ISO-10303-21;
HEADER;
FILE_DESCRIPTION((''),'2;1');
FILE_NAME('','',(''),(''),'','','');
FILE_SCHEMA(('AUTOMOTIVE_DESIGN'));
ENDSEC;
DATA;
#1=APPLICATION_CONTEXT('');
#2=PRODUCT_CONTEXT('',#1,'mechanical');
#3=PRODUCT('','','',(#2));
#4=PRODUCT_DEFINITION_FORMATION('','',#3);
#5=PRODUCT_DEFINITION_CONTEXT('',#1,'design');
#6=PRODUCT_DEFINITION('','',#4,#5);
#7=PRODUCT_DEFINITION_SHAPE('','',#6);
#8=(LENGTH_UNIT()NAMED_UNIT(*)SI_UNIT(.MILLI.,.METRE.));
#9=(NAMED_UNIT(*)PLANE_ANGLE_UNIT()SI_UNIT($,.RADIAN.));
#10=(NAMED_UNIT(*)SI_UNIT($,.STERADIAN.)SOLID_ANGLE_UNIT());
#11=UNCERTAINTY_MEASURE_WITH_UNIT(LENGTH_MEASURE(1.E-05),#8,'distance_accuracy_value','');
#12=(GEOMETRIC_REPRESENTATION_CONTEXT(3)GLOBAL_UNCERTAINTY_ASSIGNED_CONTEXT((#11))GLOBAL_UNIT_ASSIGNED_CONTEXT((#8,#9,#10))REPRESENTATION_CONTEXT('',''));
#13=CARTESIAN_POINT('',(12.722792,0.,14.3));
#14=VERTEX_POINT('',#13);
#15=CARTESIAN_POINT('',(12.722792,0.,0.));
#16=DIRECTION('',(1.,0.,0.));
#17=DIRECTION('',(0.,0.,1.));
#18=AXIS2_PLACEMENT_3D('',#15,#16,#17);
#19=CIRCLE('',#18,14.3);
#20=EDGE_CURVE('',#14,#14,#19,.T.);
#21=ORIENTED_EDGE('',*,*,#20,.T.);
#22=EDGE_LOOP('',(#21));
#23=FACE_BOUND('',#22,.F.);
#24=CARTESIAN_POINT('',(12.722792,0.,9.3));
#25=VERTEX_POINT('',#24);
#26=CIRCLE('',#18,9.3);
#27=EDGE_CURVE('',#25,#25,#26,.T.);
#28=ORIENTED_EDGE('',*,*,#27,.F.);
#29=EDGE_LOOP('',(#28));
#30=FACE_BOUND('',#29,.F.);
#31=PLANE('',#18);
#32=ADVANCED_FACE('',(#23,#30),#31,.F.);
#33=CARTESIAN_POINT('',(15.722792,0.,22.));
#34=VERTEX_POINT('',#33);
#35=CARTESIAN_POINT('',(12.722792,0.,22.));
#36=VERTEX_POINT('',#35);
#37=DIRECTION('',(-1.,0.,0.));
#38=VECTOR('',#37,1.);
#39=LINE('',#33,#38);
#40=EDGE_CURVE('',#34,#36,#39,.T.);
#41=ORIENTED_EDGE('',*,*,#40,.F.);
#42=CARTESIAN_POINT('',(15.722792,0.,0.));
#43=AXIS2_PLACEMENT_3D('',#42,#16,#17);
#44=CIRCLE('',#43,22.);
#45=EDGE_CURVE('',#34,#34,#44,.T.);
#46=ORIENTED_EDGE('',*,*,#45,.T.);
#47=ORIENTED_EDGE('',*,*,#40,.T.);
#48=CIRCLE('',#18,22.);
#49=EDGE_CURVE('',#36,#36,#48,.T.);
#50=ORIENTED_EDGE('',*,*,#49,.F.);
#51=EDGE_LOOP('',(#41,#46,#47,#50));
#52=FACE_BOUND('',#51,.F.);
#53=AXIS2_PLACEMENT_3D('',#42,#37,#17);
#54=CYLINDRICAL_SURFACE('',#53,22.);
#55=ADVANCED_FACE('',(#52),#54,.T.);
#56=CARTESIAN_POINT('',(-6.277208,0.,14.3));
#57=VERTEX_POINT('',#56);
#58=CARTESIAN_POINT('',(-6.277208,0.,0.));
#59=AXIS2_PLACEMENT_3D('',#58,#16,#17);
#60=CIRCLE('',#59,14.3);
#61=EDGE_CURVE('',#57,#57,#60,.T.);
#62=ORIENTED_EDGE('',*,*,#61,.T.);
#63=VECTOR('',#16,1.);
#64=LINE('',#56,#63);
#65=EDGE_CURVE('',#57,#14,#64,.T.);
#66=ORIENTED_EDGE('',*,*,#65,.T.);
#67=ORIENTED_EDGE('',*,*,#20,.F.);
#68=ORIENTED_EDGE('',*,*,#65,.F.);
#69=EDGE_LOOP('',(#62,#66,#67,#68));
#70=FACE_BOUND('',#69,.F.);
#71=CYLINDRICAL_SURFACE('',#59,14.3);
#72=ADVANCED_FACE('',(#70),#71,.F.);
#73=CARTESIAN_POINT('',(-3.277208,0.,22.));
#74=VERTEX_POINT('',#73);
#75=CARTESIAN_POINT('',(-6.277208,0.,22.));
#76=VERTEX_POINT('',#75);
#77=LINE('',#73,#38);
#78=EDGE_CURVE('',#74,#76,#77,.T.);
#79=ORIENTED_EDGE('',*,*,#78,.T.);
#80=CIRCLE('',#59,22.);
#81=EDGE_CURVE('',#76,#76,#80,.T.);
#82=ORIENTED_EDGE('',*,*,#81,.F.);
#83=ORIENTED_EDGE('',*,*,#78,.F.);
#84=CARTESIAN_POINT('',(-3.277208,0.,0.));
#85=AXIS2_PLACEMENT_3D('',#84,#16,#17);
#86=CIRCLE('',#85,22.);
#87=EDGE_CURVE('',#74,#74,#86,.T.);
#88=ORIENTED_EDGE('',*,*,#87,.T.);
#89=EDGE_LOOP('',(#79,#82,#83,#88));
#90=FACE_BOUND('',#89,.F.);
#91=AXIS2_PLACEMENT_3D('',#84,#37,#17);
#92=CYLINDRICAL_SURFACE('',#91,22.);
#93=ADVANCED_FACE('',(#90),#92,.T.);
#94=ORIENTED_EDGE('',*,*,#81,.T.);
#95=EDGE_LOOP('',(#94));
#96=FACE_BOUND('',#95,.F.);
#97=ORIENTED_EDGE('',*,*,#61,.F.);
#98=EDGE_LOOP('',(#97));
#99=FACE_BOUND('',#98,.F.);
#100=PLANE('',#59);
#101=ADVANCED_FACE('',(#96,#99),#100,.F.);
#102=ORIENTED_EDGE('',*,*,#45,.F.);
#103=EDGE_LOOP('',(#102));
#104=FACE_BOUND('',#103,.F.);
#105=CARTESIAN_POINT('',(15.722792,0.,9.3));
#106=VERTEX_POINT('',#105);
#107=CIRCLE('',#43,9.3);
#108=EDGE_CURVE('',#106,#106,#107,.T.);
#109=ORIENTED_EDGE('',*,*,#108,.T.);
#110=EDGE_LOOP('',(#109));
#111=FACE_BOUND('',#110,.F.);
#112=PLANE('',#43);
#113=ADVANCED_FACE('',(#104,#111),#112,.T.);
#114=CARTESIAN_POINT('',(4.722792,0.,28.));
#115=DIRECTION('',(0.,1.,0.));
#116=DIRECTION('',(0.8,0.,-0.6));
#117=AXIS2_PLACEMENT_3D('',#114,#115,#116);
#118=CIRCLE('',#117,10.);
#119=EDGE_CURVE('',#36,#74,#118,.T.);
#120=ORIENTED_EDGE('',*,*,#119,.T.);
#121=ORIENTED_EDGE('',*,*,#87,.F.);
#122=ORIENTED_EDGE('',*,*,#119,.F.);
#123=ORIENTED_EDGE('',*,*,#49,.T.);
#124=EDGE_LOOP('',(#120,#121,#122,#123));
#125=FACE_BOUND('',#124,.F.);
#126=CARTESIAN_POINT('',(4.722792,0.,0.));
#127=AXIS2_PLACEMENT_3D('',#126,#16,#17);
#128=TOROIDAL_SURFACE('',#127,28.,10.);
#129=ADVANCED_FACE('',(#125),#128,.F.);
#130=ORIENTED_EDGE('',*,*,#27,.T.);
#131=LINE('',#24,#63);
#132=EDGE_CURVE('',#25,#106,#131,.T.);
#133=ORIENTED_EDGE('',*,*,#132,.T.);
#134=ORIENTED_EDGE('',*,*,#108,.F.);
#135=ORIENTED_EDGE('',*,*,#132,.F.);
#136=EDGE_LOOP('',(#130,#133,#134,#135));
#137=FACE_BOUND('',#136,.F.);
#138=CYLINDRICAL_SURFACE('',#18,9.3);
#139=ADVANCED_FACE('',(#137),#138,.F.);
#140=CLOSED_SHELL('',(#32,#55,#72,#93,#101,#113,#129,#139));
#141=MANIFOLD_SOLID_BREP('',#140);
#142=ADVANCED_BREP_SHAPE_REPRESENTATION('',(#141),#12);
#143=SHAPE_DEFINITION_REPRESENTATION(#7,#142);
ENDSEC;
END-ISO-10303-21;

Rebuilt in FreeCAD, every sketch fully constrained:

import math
import FreeCAD as App
import Part
import Sketcher

V = App.Vector

doc = App.newDocument("Part")
params = doc.addObject("Spreadsheet::Sheet", "Params")
for row, (alias, value) in enumerate([
    ("sketch1_radius", "10 mm"),
    ("sketch1_width", "19 mm"),
    ("sketch1_width2", "3 mm"),
    ("sketch1_height", "5 mm"),
    ("sketch1_height2", "7.7 mm"),
    ("revolution_angle", "360 deg"),
], start=1):
    params.set(f"A{row}", alias)
    params.set(f"B{row}", "=" + value)
    params.setAlias(f"B{row}", alias)

body = doc.addObject("PartDesign::Body", "Body")

# Sketch on XZ plane
sketch1 = body.newObject("Sketcher::SketchObject", "Sketch")
sketch1.AttachmentSupport = (doc.getObject("XZ_Plane"), [""])
sketch1.MapMode = "FlatFace"
sketch1.addGeometry([
    Part.LineSegment(V(-6.277208, 22, 0), V(-6.277208, 14.3, 0)),  # 0
    Part.LineSegment(V(-6.277208, 14.3, 0), V(12.722792, 14.3, 0)),  # 1
    Part.LineSegment(V(12.722792, 14.3, 0), V(12.722792, 9.3, 0)),  # 2
    Part.LineSegment(V(12.722792, 9.3, 0), V(15.722792, 9.3, 0)),  # 3
    Part.LineSegment(V(15.722792, 9.3, 0), V(15.722792, 22, 0)),  # 4
    Part.LineSegment(V(15.722792, 22, 0), V(12.722792, 22, 0)),  # 5
    Part.ArcOfCircle(Part.Circle(V(4.722792, 28, 0), V(0, 0, 1), 10), math.radians(-143.130102), math.radians(-36.869898)),  # 6
    Part.LineSegment(V(-3.277208, 22, 0), V(-6.277208, 22, 0)),  # 7
], False)
sketch1.addConstraint([
    Sketcher.Constraint("Coincident", 0, 2, 1, 1),
    Sketcher.Constraint("Coincident", 1, 2, 2, 1),
    Sketcher.Constraint("Coincident", 2, 2, 3, 1),
    Sketcher.Constraint("Coincident", 3, 2, 4, 1),
    Sketcher.Constraint("Coincident", 4, 2, 5, 1),
    Sketcher.Constraint("Coincident", 5, 2, 6, 2),
    Sketcher.Constraint("Coincident", 6, 1, 7, 1),
    Sketcher.Constraint("Coincident", 7, 2, 0, 1),
    Sketcher.Constraint("Vertical", 0),
    Sketcher.Constraint("Horizontal", 1),
    Sketcher.Constraint("Vertical", 2),
    Sketcher.Constraint("Horizontal", 3),
    Sketcher.Constraint("Vertical", 4),
    Sketcher.Constraint("Horizontal", 5),
    Sketcher.Constraint("Horizontal", 7),
    Sketcher.Constraint("Horizontal", 5, 2, 6, 1),
    Sketcher.Constraint("Vertical", 2, 2, 5, 2),
    Sketcher.Constraint("Equal", 5, 7),
    Sketcher.Constraint("Radius", 6, 10.0),
    Sketcher.Constraint("DistanceX", 1, 1, 1, 2, 19.0),
    Sketcher.Constraint("DistanceX", 3, 1, 3, 2, 3.0),
    Sketcher.Constraint("DistanceY", 2, 2, 2, 1, 5.0),
    Sketcher.Constraint("DistanceY", 0, 2, 0, 1, 7.7),
    Sketcher.Constraint("DistanceY", -1, 1, 6, 3, 28.0),
    Sketcher.Constraint("DistanceX", -1, 1, 6, 3, 4.722792),
])
sketch1.setExpression("Constraints[18]", "Params.sketch1_radius")
sketch1.setExpression("Constraints[19]", "Params.sketch1_width")
sketch1.setExpression("Constraints[20]", "Params.sketch1_width2")
sketch1.setExpression("Constraints[21]", "Params.sketch1_height")
sketch1.setExpression("Constraints[22]", "Params.sketch1_height2")
revolution = body.newObject("PartDesign::Revolution", "Revolution")
revolution.Profile = sketch1
revolution.ReferenceAxis = (sketch1, ["H_Axis"])
revolution.setExpression("Angle", "Params.revolution_angle")

doc.recompute()
